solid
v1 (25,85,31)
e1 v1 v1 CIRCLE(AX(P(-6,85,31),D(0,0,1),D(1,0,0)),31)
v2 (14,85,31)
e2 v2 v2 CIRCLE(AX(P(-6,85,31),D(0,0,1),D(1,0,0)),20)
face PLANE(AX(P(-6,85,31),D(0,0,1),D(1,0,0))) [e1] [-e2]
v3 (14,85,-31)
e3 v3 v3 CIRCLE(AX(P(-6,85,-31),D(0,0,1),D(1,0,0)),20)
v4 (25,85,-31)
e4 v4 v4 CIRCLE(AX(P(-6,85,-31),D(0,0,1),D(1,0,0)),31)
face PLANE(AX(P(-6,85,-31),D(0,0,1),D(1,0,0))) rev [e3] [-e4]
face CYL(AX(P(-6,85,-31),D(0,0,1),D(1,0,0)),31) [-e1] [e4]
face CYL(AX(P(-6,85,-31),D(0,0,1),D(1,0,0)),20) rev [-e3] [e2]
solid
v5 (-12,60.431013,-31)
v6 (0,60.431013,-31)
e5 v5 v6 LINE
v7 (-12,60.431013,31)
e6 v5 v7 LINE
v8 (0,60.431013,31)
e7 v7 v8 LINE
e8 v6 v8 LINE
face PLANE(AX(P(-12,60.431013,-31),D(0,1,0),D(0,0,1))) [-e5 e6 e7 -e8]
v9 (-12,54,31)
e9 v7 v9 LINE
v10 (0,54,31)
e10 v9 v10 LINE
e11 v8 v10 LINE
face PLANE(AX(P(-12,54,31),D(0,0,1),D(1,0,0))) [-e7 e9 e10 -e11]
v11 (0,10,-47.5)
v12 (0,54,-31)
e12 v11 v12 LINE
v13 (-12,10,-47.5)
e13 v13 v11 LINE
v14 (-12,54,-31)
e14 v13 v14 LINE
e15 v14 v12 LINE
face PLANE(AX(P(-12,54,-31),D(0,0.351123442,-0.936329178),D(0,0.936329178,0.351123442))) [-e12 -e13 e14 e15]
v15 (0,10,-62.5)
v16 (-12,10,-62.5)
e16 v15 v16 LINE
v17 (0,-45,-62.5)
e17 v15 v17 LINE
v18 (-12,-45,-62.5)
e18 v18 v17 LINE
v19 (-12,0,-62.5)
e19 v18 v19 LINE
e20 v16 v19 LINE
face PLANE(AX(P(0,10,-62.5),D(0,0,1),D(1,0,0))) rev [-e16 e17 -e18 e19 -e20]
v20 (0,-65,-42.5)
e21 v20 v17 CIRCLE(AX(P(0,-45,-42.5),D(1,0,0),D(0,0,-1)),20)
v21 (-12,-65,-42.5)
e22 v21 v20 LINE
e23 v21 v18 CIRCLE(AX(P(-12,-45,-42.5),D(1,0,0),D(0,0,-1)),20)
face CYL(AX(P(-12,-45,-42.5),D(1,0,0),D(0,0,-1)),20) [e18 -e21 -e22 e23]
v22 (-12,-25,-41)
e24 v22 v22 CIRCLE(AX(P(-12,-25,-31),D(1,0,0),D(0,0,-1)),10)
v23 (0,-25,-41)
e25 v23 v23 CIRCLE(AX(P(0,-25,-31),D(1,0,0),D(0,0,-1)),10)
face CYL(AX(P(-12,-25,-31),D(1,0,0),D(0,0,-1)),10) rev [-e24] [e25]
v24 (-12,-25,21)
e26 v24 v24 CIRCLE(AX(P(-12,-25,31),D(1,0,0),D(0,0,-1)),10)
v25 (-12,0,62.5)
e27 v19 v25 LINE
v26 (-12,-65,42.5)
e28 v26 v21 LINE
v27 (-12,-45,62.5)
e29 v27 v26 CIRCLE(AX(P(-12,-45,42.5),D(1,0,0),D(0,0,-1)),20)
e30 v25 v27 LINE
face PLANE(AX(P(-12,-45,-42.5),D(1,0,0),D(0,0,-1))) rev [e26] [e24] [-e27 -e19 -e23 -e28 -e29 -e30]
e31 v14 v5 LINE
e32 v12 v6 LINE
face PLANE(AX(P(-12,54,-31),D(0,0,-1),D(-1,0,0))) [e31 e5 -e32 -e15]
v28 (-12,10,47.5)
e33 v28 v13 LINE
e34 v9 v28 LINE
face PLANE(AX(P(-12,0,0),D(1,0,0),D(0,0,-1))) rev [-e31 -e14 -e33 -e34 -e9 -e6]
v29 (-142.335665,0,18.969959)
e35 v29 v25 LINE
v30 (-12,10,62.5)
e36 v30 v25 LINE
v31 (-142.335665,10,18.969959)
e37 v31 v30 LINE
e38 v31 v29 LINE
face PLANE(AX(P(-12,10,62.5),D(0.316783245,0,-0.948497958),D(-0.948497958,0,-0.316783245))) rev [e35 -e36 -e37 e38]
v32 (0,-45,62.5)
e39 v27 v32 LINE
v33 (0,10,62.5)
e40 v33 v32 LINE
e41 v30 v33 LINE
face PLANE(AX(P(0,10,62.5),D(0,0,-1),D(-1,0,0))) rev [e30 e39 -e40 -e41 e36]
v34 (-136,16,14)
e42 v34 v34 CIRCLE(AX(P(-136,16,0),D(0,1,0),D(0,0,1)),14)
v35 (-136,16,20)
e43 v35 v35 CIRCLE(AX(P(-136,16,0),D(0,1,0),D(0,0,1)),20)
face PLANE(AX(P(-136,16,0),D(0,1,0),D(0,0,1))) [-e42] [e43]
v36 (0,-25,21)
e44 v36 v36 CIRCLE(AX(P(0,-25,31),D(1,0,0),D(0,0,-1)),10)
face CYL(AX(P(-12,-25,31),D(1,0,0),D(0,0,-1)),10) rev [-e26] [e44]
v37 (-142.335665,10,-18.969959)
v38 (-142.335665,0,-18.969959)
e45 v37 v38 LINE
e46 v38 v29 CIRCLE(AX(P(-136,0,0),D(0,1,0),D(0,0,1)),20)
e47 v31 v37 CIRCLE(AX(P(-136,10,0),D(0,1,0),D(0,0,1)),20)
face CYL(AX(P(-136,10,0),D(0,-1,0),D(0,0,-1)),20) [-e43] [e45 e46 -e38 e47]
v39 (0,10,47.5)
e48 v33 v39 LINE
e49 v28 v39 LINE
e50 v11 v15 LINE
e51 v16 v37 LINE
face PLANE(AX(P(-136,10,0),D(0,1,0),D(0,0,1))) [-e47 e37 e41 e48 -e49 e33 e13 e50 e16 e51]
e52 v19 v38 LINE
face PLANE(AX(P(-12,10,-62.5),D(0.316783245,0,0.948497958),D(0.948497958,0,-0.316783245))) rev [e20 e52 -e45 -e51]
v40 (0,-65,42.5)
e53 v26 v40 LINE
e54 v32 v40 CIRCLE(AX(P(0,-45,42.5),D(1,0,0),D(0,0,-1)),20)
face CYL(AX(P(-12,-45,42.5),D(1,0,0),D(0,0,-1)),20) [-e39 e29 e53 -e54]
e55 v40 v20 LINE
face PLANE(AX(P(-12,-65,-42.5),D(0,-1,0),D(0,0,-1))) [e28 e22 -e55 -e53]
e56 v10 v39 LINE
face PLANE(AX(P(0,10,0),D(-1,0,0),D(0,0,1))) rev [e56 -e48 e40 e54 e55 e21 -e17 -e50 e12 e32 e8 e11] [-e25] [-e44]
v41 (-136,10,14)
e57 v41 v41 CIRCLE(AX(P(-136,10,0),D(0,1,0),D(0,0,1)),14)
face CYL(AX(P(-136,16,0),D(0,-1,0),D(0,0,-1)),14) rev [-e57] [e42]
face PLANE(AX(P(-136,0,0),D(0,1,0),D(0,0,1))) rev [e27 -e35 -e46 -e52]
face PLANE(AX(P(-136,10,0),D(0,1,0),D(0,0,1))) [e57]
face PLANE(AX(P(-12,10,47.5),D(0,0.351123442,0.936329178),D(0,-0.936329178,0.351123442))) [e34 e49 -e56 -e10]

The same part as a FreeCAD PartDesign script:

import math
import FreeCAD as App
import Part
import Sketcher
Q = App.Units.Quantity

doc = App.newDocument("Part")
body = doc.addObject("PartDesign::Body", "Body")

# Sketch on XZ plane
sketch1 = body.newObject("Sketcher::SketchObject", "Sketch")
sketch1.AttachmentSupport = (doc.getObject("XZ_Plane"), [""])
sketch1.MapMode = "FlatFace"
sketch1.addGeometry([
    Part.LineSegment(App.Vector(0, -62, 0), App.Vector(-12, -62, 0)),  # 0
    Part.LineSegment(App.Vector(-12, -62, 0), App.Vector(-142, -19, 0)),  # 1
    Part.ArcOfCircle(Part.Circle(App.Vector(-136, 0, 0), App.Vector(0, 0, 1), 20), math.radians(108), math.radians(252)),  # 2
    Part.LineSegment(App.Vector(-142, 19, 0), App.Vector(-12, 62, 0)),  # 3
    Part.LineSegment(App.Vector(-12, 62, 0), App.Vector(0, 62, 0)),  # 4
    Part.LineSegment(App.Vector(0, 62, 0), App.Vector(0, -62, 0)),  # 5
], False)
sketch1.addConstraint([
    Sketcher.Constraint("Coincident", 0, 2, 1, 1),
    Sketcher.Constraint("Tangent", 1, 2, 2, 2),
    Sketcher.Constraint("Tangent", 2, 1, 3, 1),
    Sketcher.Constraint("Coincident", 3, 2, 4, 1),
    Sketcher.Constraint("Coincident", 4, 2, 5, 1),
    Sketcher.Constraint("Coincident", 5, 2, 0, 1),
    Sketcher.Constraint("Horizontal", 0),
    Sketcher.Constraint("Horizontal", 4),
    Sketcher.Constraint("Vertical", 5),
    Sketcher.Constraint("Symmetric", 4, 2, 5, 2, -1, 1),
    Sketcher.Constraint("Symmetric", 1, 2, 2, 1, -1),
    Sketcher.Constraint("Radius", 2, Q("20 mm")),
    Sketcher.Constraint("DistanceX", 0, 2, 0, 1, Q("12 mm")),
    Sketcher.Constraint("DistanceY", 5, 2, 5, 1, Q("125 mm")),
    Sketcher.Constraint("DistanceX", 2, 3, -1, 1, Q("136 mm")),
])
pad1 = body.newObject("PartDesign::Pad", "Pad")
pad1.Profile = sketch1
pad1.Length = 10
pad1.Reversed = True

# Sketch on XZ plane
sketch2 = body.newObject("Sketcher::SketchObject", "Sketch001")
sketch2.AttachmentSupport = (doc.getObject("XZ_Plane"), [""])
sketch2.MapMode = "FlatFace"
sketch2.AttachmentOffset = App.Placement(App.Vector(0, 0, -10), App.Rotation())
sketch2.addGeometry([
    Part.Circle(App.Vector(-136, 0, 0), App.Vector(0, 0, 1), 20),
    Part.Circle(App.Vector(-136, 0, 0), App.Vector(0, 0, 1), 14),
], False)
sketch2.addConstraint([
    Sketcher.Constraint("Coincident", 1, 3, 0, 3),
    Sketcher.Constraint("PointOnObject", 0, 3, -1),
    Sketcher.Constraint("Diameter", 0, Q("40 mm")),
    Sketcher.Constraint("Diameter", 1, Q("28 mm")),
    Sketcher.Constraint("DistanceX", 0, 3, -1, 1, Q("136 mm")),
])
pad2 = body.newObject("PartDesign::Pad", "Pad001")
pad2.Profile = sketch2
pad2.Length = 6
pad2.Reversed = True

# Sketch on YZ plane
sketch3 = body.newObject("Sketcher::SketchObject", "Sketch002")
sketch3.AttachmentSupport = (doc.getObject("YZ_Plane"), [""])
sketch3.MapMode = "FlatFace"
sketch3.addGeometry([
    Part.LineSegment(App.Vector(54, 31, 0), App.Vector(10, 48, 0)),  # 0
    Part.LineSegment(App.Vector(10, 48, 0), App.Vector(10, -48, 0)),  # 1
    Part.LineSegment(App.Vector(10, -48, 0), App.Vector(54, -31, 0)),  # 2
    Part.LineSegment(App.Vector(54, -31, 0), App.Vector(60, -31, 0)),  # 3
    Part.LineSegment(App.Vector(60, -31, 0), App.Vector(60, 31, 0)),  # 4
    Part.LineSegment(App.Vector(60, 31, 0), App.Vector(54, 31, 0)),  # 5
], False)
sketch3.addConstraint([
    Sketcher.Constraint("Coincident", 0, 2, 1, 1),
    Sketcher.Constraint("Coincident", 1, 2, 2, 1),
    Sketcher.Constraint("Coincident", 2, 2, 3, 1),
    Sketcher.Constraint("Coincident", 3, 2, 4, 1),
    Sketcher.Constraint("Coincident", 4, 2, 5, 1),
    Sketcher.Constraint("Coincident", 5, 2, 0, 1),
    Sketcher.Constraint("Vertical", 1),
    Sketcher.Constraint("Horizontal", 3),
    Sketcher.Constraint("Vertical", 4),
    Sketcher.Constraint("Horizontal", 5),
    Sketcher.Constraint("Symmetric", 2, 2, 5, 2, -1),
    Sketcher.Constraint("Equal", 0, 2),
    Sketcher.Constraint("DistanceY", 1, 2, 1, 1, Q("95 mm")),
    Sketcher.Constraint("DistanceY", 4, 1, 4, 2, Q("62 mm")),
    Sketcher.Constraint("DistanceX", -1, 1, 0, 2, Q("10 mm")),
    Sketcher.Constraint("DistanceX", -1, 1, 2, 2, Q("54 mm")),
    Sketcher.Constraint("DistanceX", 3, 1, 3, 2, Q("6.431013 mm")),
])
pad3 = body.newObject("PartDesign::Pad", "Pad002")
pad3.Profile = sketch3
pad3.Length = 12
pad3.Reversed = True

# Sketch on YZ plane
sketch4 = body.newObject("Sketcher::SketchObject", "Sketch003")
sketch4.AttachmentSupport = (doc.getObject("YZ_Plane"), [""])
sketch4.MapMode = "FlatFace"
sketch4.addGeometry([
    Part.LineSegment(App.Vector(0, -62, 0), App.Vector(0, 62, 0)),  # 0
    Part.LineSegment(App.Vector(0, 62, 0), App.Vector(-45, 62, 0)),  # 1
    Part.ArcOfCircle(Part.Circle(App.Vector(-45, 43, 0), App.Vector(0, 0, 1), 20), math.radians(90), math.radians(180)),  # 2
    Part.LineSegment(App.Vector(-65, 42, 0), App.Vector(-65, -42, 0)),  # 3
    Part.ArcOfCircle(Part.Circle(App.Vector(-45, -43, 0), App.Vector(0, 0, 1), 20), math.radians(180), math.radians(270)),  # 4
    Part.LineSegment(App.Vector(-45, -62, 0), App.Vector(0, -62, 0)),  # 5
], False)
sketch4.addConstraint([
    Sketcher.Constraint("Coincident", 0, 2, 1, 1),
    Sketcher.Constraint("Tangent", 1, 2, 2, 1),
    Sketcher.Constraint("Tangent", 2, 2, 3, 1),
    Sketcher.Constraint("Tangent", 3, 2, 4, 1),
    Sketcher.Constraint("Tangent", 4, 2, 5, 1),
    Sketcher.Constraint("Coincident", 5, 2, 0, 1),
    Sketcher.Constraint("Vertical", 0),
    Sketcher.Constraint("Horizontal", 1),
    Sketcher.Constraint("Vertical", 3),
    Sketcher.Constraint("Horizontal", 5),
    Sketcher.Constraint("Equal", 2, 4),
    Sketcher.Constraint("Symmetric", 0, 2, 5, 2, -1, 1),
    Sketcher.Constraint("Radius", 2, Q("20 mm")),
    Sketcher.Constraint("DistanceX", 1, 2, 1, 1, Q("45 mm")),
    Sketcher.Constraint("DistanceY", 0, 1, 0, 2, Q("125 mm")),
])
pad4 = body.newObject("PartDesign::Pad", "Pad003")
pad4.Profile = sketch4
pad4.Length = 12
pad4.Reversed = True

# Sketch on YZ plane
sketch5 = body.newObject("Sketcher::SketchObject", "Sketch004")
sketch5.AttachmentSupport = (doc.getObject("YZ_Plane"), [""])
sketch5.MapMode = "FlatFace"
sketch5.addGeometry([
    Part.Circle(App.Vector(-25, 31, 0), App.Vector(0, 0, 1), 10),
    Part.Circle(App.Vector(-25, -31, 0), App.Vector(0, 0, 1), 10),
], False)
sketch5.addConstraint([
    Sketcher.Constraint("Equal", 0, 1),
    Sketcher.Constraint("Symmetric", 0, 3, 1, 3, -1),
    Sketcher.Constraint("Diameter", 0, Q("20 mm")),
    Sketcher.Constraint("DistanceX", 0, 3, -1, 1, Q("25 mm")),
    Sketcher.Constraint("DistanceY", -1, 1, 0, 3, Q("31 mm")),
])
pad5 = body.newObject("PartDesign::Pad", "Pad004")
pad5.Profile = sketch5
pad5.Length = 12
pad5.Reversed = True

# Sketch on YZ plane
sketch6 = body.newObject("Sketcher::SketchObject", "Sketch005")
sketch6.AttachmentSupport = (doc.getObject("YZ_Plane"), [""])
sketch6.MapMode = "FlatFace"
sketch6.addGeometry([
    Part.Circle(App.Vector(-25, 31, 0), App.Vector(0, 0, 1), 10),
    Part.Circle(App.Vector(-25, -31, 0), App.Vector(0, 0, 1), 10),
], False)
sketch6.addConstraint([
    Sketcher.Constraint("Equal", 0, 1),
    Sketcher.Constraint("Symmetric", 0, 3, 1, 3, -1),
    Sketcher.Constraint("Diameter", 0, Q("20 mm")),
    Sketcher.Constraint("DistanceX", 0, 3, -1, 1, Q("25 mm")),
    Sketcher.Constraint("DistanceY", -1, 1, 0, 3, Q("31 mm")),
])
pocket1 = body.newObject("PartDesign::Pocket", "Pocket")
pocket1.Profile = sketch6
pocket1.Length = 12
body2 = doc.addObject("PartDesign::Body", "Body001")

# Sketch on XY plane
sketch7 = body2.newObject("Sketcher::SketchObject", "Sketch006")
sketch7.AttachmentSupport = (doc.getObject("XY_Plane001"), [""])
sketch7.MapMode = "FlatFace"
sketch7.addGeometry([
    Part.Circle(App.Vector(-6, 85, 0), App.Vector(0, 0, 1), 31),
    Part.Circle(App.Vector(-6, 85, 0), App.Vector(0, 0, 1), 20),
], False)
sketch7.addConstraint([
    Sketcher.Constraint("Coincident", 1, 3, 0, 3),
    Sketcher.Constraint("Diameter", 0, Q("62 mm")),
    Sketcher.Constraint("Diameter", 1, Q("40 mm")),
    Sketcher.Constraint("DistanceX", 0, 3, -1, 1, Q("6 mm")),
    Sketcher.Constraint("DistanceY", -1, 1, 0, 3, Q("85 mm")),
])
pad6 = body2.newObject("PartDesign::Pad", "Pad005")
pad6.Profile = sketch7
pad6.Type = "TwoLengths"
pad6.Length = 31
pad6.Length2 = 31

doc.recompute()
